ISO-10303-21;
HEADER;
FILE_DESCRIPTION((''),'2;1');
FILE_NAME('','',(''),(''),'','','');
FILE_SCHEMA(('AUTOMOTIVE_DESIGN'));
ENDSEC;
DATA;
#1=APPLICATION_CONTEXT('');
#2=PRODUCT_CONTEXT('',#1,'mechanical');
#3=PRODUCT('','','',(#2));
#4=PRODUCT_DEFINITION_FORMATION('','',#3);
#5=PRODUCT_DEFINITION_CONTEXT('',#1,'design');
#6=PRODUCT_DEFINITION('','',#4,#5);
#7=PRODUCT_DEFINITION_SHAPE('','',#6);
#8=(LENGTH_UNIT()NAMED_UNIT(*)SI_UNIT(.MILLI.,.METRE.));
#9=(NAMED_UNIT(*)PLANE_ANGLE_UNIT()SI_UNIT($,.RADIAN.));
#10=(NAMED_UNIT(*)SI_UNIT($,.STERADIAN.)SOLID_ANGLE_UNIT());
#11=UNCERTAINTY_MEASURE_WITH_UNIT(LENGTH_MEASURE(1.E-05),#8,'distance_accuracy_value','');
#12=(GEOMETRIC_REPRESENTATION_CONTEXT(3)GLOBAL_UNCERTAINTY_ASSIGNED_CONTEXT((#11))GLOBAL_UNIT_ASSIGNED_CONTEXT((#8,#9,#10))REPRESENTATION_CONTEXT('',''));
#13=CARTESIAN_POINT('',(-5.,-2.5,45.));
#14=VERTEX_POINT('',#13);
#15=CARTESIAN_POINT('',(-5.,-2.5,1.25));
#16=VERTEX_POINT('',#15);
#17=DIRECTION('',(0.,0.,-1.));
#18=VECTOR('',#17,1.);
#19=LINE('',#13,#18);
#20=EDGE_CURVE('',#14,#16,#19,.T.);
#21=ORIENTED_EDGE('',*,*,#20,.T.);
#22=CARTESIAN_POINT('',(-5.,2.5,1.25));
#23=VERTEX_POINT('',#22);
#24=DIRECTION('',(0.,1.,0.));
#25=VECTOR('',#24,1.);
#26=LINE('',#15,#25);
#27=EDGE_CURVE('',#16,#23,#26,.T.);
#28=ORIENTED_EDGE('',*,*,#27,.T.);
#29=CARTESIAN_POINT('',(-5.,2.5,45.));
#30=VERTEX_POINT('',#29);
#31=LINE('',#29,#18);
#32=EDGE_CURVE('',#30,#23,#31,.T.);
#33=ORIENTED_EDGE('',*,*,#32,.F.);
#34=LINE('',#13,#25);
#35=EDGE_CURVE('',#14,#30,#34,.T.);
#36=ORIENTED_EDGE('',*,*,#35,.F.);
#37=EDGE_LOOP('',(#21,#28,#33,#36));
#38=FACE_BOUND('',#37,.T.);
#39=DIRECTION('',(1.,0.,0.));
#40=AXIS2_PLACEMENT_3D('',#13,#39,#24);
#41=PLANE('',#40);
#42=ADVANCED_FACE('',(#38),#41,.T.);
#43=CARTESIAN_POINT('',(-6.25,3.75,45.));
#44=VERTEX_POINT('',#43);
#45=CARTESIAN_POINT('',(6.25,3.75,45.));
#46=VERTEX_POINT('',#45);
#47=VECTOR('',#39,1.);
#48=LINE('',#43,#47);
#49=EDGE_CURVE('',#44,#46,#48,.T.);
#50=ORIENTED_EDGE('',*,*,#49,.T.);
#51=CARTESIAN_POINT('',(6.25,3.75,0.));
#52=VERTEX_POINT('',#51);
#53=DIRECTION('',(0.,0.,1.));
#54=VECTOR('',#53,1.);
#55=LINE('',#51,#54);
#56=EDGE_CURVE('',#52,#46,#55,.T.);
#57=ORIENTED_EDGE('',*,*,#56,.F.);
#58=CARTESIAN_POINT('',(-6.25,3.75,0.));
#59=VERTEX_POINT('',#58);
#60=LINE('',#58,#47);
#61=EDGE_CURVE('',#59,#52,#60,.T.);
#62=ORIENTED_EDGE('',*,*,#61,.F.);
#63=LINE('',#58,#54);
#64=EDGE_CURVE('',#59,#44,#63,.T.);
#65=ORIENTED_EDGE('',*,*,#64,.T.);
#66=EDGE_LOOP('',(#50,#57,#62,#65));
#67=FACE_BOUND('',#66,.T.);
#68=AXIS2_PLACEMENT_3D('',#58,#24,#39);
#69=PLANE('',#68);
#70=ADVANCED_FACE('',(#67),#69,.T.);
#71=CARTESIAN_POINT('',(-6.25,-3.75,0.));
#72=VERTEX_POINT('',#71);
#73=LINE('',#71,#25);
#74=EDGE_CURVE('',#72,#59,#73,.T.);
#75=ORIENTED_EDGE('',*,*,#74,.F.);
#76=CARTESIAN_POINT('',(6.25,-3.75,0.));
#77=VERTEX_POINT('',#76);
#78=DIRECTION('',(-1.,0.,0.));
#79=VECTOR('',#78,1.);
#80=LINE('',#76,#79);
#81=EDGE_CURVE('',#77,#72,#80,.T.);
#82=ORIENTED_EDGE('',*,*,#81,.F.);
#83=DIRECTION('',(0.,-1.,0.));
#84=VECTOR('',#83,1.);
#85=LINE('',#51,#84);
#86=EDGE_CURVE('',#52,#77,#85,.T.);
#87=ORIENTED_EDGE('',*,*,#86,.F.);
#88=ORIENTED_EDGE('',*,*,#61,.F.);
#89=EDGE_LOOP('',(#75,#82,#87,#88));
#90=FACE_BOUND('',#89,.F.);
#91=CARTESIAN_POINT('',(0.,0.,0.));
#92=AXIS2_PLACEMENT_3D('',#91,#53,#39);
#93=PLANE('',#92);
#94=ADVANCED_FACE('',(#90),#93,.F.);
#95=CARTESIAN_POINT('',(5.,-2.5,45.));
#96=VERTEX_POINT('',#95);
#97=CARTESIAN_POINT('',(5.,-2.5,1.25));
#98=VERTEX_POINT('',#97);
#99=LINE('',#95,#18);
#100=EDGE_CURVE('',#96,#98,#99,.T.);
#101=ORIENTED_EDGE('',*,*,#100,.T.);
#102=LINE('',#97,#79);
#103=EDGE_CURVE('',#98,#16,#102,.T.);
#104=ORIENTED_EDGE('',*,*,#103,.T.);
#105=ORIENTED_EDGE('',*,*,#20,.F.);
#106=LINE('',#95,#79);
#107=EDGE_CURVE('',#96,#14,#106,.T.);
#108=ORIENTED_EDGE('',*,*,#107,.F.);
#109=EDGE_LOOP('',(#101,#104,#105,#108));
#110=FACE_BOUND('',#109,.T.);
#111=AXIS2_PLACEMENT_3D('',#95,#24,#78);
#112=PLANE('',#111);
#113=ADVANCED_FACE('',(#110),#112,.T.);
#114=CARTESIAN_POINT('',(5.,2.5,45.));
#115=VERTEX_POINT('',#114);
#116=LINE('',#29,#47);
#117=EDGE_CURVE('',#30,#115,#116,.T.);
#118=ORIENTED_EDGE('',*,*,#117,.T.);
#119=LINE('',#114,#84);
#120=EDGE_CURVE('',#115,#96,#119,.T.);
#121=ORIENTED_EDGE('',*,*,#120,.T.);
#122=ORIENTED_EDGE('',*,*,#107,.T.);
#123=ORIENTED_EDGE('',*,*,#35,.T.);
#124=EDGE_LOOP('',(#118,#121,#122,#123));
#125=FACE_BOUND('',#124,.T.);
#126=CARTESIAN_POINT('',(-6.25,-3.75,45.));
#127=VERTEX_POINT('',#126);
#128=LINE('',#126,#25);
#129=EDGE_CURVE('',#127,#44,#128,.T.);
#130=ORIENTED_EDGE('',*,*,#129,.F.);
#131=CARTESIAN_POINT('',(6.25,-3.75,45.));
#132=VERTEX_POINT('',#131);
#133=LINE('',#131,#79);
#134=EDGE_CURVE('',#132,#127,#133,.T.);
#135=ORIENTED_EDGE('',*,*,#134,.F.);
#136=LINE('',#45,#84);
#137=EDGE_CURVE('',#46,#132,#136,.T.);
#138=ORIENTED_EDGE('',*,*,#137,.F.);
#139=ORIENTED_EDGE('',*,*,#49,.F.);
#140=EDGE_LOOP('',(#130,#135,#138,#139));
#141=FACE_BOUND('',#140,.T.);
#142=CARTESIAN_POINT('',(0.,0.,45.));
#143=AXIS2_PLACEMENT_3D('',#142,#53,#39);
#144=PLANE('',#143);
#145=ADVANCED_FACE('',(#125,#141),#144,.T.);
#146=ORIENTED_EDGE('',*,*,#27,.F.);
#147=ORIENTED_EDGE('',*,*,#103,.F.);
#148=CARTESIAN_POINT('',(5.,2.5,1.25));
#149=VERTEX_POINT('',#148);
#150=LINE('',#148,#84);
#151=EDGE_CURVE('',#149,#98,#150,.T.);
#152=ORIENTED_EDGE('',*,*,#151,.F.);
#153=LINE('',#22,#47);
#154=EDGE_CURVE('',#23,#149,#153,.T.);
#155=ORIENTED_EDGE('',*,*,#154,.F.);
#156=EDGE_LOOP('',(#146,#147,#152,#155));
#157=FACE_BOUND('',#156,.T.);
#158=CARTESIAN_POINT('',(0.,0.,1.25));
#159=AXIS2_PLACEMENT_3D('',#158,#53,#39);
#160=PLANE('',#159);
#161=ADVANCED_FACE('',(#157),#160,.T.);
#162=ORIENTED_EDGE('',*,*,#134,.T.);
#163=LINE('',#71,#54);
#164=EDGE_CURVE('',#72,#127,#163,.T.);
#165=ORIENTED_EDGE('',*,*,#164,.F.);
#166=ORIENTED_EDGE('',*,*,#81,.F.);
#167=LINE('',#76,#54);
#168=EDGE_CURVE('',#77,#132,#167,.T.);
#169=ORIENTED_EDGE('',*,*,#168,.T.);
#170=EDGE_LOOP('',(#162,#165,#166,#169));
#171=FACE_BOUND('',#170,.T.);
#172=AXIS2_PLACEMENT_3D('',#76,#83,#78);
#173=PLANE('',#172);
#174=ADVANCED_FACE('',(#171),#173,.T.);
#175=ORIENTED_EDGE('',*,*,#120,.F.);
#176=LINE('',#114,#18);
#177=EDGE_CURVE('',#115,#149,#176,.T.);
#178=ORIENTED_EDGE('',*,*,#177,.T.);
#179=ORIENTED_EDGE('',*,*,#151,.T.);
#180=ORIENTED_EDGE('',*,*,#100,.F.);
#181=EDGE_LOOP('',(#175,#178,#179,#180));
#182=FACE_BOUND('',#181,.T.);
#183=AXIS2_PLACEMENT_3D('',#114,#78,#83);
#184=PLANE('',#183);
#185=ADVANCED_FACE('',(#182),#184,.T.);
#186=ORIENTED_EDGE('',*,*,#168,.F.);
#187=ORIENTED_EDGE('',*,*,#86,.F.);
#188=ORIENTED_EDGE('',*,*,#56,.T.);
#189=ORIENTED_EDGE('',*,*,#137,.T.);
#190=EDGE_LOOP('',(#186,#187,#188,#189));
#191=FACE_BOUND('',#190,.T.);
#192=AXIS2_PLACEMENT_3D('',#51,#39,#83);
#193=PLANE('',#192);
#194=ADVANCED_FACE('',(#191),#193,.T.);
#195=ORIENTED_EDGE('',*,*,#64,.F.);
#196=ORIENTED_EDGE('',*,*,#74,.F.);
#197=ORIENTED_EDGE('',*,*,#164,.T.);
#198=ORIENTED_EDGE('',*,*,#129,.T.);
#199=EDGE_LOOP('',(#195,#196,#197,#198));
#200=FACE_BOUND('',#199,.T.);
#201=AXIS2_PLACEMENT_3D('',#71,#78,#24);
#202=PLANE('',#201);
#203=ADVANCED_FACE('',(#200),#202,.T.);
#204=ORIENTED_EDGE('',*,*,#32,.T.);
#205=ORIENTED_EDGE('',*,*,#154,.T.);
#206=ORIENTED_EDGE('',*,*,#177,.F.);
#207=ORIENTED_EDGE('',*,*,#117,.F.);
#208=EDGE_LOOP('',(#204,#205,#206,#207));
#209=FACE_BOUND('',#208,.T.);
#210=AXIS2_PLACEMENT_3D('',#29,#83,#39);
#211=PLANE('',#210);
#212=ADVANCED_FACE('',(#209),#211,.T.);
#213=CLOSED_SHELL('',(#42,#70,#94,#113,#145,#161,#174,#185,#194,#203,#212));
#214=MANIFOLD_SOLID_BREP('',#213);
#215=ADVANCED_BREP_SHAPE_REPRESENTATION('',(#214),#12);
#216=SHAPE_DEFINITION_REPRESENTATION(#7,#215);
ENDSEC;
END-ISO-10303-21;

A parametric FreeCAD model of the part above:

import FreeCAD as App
import Part
import Sketcher
Q = App.Units.Quantity

doc = App.newDocument("Part")
body = doc.addObject("PartDesign::Body", "Body")

sketch1 = doc.addObject("Sketcher::SketchObject", "Sketch")
body.addObject(sketch1)
sketch1.AttachmentSupport = (doc.XY_Plane, [""])
sketch1.MapMode = "FlatFace"
sketch1.addGeometry([
    Part.LineSegment(App.Vector(6.25, 3.75, 0), App.Vector(-6.25, 3.75, 0)),
    Part.LineSegment(App.Vector(-6.25, 3.75, 0), App.Vector(-6.25, -3.75, 0)),
    Part.LineSegment(App.Vector(-6.25, -3.75, 0), App.Vector(6.25, -3.75, 0)),
    Part.LineSegment(App.Vector(6.25, -3.75, 0), App.Vector(6.25, 3.75, 0)),
], False)
sketch1.addConstraint([
    Sketcher.Constraint("Coincident", 0, 2, 1, 1),
    Sketcher.Constraint("Coincident", 1, 2, 2, 1),
    Sketcher.Constraint("Coincident", 2, 2, 3, 1),
    Sketcher.Constraint("Coincident", 3, 2, 0, 1),
    Sketcher.Constraint("Horizontal", 0),
    Sketcher.Constraint("Vertical", 1),
    Sketcher.Constraint("Horizontal", 2),
    Sketcher.Constraint("Vertical", 3),
    Sketcher.Constraint("Symmetric", 0, 2, 2, 2, -1, 1),
    Sketcher.Constraint("DistanceX", 0, 2, 0, 1, Q("12.5 mm")),
    Sketcher.Constraint("DistanceY", 1, 2, 1, 1, Q("7.5 mm")),
])
pad1 = doc.addObject("PartDesign::Pad", "Pad")
body.addObject(pad1)
pad1.Profile = sketch1
pad1.Length = 45

sketch2 = doc.addObject("Sketcher::SketchObject", "Sketch001")
body.addObject(sketch2)
sketch2.AttachmentSupport = (doc.XY_Plane, [""])
sketch2.MapMode = "FlatFace"
sketch2.AttachmentOffset = App.Placement(App.Vector(0, 0, 45), App.Rotation())
sketch2.addGeometry([
    Part.LineSegment(App.Vector(5, 2.5, 0), App.Vector(-5, 2.5, 0)),
    Part.LineSegment(App.Vector(-5, 2.5, 0), App.Vector(-5, -2.5, 0)),
    Part.LineSegment(App.Vector(-5, -2.5, 0), App.Vector(5, -2.5, 0)),
    Part.LineSegment(App.Vector(5, -2.5, 0), App.Vector(5, 2.5, 0)),
], False)
sketch2.addConstraint([
    Sketcher.Constraint("Coincident", 0, 2, 1, 1),
    Sketcher.Constraint("Coincident", 1, 2, 2, 1),
    Sketcher.Constraint("Coincident", 2, 2, 3, 1),
    Sketcher.Constraint("Coincident", 3, 2, 0, 1),
    Sketcher.Constraint("Horizontal", 0),
    Sketcher.Constraint("Vertical", 1),
    Sketcher.Constraint("Horizontal", 2),
    Sketcher.Constraint("Vertical", 3),
    Sketcher.Constraint("Symmetric", 0, 2, 2, 2, -1, 1),
    Sketcher.Constraint("DistanceX", 0, 2, 0, 1, Q("10 mm")),
    Sketcher.Constraint("DistanceY", 1, 2, 1, 1, Q("5 mm")),
])
pocket1 = doc.addObject("PartDesign::Pocket", "Pocket")
body.addObject(pocket1)
pocket1.Profile = sketch2
pocket1.Length = 43.75

doc.recompute()
